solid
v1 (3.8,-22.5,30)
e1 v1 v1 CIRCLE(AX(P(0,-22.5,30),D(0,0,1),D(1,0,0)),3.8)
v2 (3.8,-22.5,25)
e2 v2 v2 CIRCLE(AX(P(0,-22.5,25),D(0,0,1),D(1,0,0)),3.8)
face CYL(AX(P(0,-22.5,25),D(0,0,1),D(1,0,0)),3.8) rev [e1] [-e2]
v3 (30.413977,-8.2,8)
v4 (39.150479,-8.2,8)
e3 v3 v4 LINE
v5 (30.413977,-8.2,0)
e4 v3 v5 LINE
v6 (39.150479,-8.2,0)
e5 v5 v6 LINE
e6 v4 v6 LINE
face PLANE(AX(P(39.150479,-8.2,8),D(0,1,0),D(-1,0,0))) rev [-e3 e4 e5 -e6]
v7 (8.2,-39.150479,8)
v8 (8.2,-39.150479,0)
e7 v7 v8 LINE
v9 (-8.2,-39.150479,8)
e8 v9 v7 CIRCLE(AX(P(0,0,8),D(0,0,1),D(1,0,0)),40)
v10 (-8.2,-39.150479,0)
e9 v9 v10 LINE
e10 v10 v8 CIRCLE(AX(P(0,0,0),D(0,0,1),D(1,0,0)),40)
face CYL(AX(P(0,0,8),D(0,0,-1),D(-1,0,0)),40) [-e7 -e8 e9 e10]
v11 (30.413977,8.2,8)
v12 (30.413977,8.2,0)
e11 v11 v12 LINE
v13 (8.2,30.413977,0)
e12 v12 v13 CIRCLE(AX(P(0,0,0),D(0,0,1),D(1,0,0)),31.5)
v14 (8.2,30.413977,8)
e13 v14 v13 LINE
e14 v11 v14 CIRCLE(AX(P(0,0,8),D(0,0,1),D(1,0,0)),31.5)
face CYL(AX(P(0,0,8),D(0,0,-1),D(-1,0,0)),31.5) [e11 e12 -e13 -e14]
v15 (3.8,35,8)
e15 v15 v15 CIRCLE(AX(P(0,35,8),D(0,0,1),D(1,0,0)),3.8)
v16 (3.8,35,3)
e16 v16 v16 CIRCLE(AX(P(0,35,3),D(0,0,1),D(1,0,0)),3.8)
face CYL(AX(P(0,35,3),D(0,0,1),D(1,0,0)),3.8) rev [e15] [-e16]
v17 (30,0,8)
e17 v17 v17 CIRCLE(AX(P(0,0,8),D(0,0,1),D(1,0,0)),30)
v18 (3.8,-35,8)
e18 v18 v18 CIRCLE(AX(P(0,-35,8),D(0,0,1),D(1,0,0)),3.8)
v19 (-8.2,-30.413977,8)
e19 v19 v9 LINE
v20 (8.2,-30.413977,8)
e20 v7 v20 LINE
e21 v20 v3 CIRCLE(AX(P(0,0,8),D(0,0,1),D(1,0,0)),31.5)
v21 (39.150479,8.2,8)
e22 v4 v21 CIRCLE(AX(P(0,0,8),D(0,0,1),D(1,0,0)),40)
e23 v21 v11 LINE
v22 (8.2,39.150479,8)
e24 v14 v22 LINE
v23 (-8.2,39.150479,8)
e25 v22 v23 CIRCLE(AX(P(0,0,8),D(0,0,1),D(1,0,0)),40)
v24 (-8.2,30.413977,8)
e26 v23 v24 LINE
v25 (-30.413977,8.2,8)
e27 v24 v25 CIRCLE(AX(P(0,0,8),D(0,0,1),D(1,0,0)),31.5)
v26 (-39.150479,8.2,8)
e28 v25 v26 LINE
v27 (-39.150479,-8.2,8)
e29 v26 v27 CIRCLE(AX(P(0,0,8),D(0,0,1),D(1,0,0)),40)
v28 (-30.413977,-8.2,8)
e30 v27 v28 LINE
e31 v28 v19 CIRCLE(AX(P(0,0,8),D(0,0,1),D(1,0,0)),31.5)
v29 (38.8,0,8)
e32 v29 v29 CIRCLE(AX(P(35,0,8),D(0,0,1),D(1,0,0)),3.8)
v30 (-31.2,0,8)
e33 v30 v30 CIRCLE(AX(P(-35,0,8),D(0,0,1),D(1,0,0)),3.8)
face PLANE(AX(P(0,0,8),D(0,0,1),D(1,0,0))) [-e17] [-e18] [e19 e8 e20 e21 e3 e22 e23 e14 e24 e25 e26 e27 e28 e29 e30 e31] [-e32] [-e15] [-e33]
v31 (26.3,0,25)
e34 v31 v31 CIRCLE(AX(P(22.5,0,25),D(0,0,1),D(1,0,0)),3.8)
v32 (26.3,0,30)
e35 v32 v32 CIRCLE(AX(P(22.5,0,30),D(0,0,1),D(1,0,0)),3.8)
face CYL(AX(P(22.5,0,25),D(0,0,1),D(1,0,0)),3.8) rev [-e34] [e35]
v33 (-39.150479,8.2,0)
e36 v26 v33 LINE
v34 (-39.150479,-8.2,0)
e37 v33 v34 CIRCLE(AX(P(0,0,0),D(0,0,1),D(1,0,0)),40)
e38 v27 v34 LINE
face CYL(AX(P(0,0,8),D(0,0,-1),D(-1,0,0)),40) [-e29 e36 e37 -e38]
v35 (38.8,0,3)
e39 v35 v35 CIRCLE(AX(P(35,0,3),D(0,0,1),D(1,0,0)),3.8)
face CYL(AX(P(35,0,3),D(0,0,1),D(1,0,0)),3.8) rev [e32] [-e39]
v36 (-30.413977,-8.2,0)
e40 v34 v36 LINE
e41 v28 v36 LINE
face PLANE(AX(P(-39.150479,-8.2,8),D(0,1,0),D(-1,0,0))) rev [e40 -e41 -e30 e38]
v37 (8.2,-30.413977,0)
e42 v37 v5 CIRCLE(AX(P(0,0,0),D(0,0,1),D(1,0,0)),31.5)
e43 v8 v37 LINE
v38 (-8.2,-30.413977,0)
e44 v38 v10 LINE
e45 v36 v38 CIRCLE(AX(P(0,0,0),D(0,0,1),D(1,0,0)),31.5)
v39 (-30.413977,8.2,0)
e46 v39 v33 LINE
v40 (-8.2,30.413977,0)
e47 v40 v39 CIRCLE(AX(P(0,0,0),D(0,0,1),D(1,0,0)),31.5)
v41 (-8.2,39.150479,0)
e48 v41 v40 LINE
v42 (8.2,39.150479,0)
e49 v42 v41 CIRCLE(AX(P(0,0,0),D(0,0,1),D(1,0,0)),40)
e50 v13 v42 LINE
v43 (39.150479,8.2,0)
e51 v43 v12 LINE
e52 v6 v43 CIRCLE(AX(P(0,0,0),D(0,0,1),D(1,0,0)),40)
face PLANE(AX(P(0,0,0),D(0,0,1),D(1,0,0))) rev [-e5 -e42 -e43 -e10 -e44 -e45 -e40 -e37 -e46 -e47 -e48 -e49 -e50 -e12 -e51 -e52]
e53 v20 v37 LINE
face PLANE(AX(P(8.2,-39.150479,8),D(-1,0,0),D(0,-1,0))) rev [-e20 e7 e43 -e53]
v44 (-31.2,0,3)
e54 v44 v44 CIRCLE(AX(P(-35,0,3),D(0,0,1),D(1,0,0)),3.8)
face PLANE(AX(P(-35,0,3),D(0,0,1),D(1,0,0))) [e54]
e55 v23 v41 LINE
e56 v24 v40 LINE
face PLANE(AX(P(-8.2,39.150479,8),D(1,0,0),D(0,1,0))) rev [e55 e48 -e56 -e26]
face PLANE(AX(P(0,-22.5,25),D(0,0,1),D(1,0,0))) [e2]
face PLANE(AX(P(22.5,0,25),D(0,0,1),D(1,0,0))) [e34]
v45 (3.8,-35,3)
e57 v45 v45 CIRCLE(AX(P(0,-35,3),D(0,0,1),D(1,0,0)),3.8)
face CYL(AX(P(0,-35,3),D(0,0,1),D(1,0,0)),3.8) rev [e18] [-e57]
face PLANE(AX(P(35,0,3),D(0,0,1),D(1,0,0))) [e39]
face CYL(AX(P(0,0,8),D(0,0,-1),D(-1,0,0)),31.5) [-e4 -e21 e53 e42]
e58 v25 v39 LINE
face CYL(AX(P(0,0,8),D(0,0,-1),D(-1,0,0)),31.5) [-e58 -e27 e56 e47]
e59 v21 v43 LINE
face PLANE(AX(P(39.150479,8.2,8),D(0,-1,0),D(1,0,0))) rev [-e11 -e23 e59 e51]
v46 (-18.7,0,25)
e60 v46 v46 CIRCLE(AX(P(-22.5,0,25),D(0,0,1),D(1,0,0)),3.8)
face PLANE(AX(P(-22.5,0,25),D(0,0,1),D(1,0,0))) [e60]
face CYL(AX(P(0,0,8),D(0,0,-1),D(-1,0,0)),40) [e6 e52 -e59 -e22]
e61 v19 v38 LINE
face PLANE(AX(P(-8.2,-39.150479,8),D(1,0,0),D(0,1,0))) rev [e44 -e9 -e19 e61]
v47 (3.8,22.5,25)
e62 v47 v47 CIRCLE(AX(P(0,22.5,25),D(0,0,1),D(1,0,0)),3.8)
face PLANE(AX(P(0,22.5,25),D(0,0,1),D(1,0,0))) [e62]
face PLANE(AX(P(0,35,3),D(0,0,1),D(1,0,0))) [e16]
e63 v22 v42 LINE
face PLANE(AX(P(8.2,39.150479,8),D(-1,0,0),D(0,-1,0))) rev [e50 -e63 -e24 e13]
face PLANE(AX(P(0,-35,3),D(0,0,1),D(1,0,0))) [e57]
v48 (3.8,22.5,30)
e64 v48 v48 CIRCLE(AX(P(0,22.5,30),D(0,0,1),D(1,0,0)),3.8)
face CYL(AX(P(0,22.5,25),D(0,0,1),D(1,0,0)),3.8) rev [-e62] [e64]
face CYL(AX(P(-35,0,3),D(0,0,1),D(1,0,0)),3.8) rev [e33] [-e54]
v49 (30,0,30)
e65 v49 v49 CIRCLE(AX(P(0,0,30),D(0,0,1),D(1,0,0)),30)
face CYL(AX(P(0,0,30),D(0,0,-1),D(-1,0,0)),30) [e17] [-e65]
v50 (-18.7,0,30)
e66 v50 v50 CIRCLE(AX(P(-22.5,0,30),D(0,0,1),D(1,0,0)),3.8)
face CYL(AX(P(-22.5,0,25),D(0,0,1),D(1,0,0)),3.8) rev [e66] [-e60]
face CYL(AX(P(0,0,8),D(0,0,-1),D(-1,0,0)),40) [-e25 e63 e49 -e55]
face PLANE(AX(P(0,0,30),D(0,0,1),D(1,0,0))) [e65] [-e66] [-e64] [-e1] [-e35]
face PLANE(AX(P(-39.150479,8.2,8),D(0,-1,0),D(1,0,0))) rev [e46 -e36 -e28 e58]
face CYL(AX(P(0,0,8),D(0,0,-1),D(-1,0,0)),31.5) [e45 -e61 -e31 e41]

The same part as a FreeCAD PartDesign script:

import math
import FreeCAD as App
import Part
import Sketcher

doc = App.newDocument("Part")
body = doc.addObject("PartDesign::Body", "Body")

# Sketch on XY plane
sketch1 = doc.addObject("Sketcher::SketchObject", "Sketch")
body.addObject(sketch1)
sketch1.AttachmentSupport = (doc.XY_Plane, [""])
sketch1.MapMode = "FlatFace"
sketch1.addGeometry(Part.LineSegment(App.Vector(-8, 39, 0), App.Vector(-8, 30, 0)), False)
sketch1.addGeometry(Part.ArcOfCircle(Part.Circle(App.Vector(0, 0, 0), App.Vector(0, 0, 1), 32), math.radians(105), math.radians(165)), False)
sketch1.addGeometry(Part.LineSegment(App.Vector(-30, 8, 0), App.Vector(-39, 8, 0)), False)
sketch1.addGeometry(Part.ArcOfCircle(Part.Circle(App.Vector(0, 0, 0), App.Vector(0, 0, 1), 40), math.radians(168), math.radians(192)), False)
sketch1.addGeometry(Part.LineSegment(App.Vector(-39, -8, 0), App.Vector(-30, -8, 0)), False)
sketch1.addGeometry(Part.ArcOfCircle(Part.Circle(App.Vector(0, 0, 0), App.Vector(0, 0, 1), 32), math.radians(-165), math.radians(-105)), False)
sketch1.addGeometry(Part.LineSegment(App.Vector(-8, -30, 0), App.Vector(-8, -39, 0)), False)
sketch1.addGeometry(Part.ArcOfCircle(Part.Circle(App.Vector(0, 0, 0), App.Vector(0, 0, 1), 40), math.radians(-102), math.radians(-78)), False)
sketch1.addGeometry(Part.LineSegment(App.Vector(8, -39, 0), App.Vector(8, -30, 0)), False)
sketch1.addGeometry(Part.ArcOfCircle(Part.Circle(App.Vector(0, 0, 0), App.Vector(0, 0, 1), 32), math.radians(-75), math.radians(-15)), False)
sketch1.addGeometry(Part.LineSegment(App.Vector(30, -8, 0), App.Vector(39, -8, 0)), False)
sketch1.addGeometry(Part.ArcOfCircle(Part.Circle(App.Vector(0, 0, 0), App.Vector(0, 0, 1), 40), math.radians(-12), math.radians(12)), False)
sketch1.addGeometry(Part.LineSegment(App.Vector(39, 8, 0), App.Vector(30, 8, 0)), False)
sketch1.addGeometry(Part.ArcOfCircle(Part.Circle(App.Vector(0, 0, 0), App.Vector(0, 0, 1), 32), math.radians(15), math.radians(75)), False)
sketch1.addGeometry(Part.LineSegment(App.Vector(8, 30, 0), App.Vector(8, 39, 0)), False)
sketch1.addGeometry(Part.ArcOfCircle(Part.Circle(App.Vector(0, 0, 0), App.Vector(0, 0, 1), 40), math.radians(78), math.radians(102)), False)
sketch1.addConstraint(Sketcher.Constraint("Coincident", 0, 2, 1, 1))
sketch1.addConstraint(Sketcher.Constraint("Coincident", 1, 2, 2, 1))
sketch1.addConstraint(Sketcher.Constraint("Coincident", 2, 2, 3, 1))
sketch1.addConstraint(Sketcher.Constraint("Coincident", 3, 2, 4, 1))
sketch1.addConstraint(Sketcher.Constraint("Coincident", 4, 2, 5, 1))
sketch1.addConstraint(Sketcher.Constraint("Coincident", 5, 2, 6, 1))
sketch1.addConstraint(Sketcher.Constraint("Coincident", 6, 2, 7, 1))
sketch1.addConstraint(Sketcher.Constraint("Coincident", 7, 2, 8, 1))
sketch1.addConstraint(Sketcher.Constraint("Coincident", 8, 2, 9, 1))
sketch1.addConstraint(Sketcher.Constraint("Coincident", 9, 2, 10, 1))
sketch1.addConstraint(Sketcher.Constraint("Coincident", 10, 2, 11, 1))
sketch1.addConstraint(Sketcher.Constraint("Coincident", 11, 2, 12, 1))
sketch1.addConstraint(Sketcher.Constraint("Coincident", 12, 2, 13, 1))
sketch1.addConstraint(Sketcher.Constraint("Coincident", 13, 2, 14, 1))
sketch1.addConstraint(Sketcher.Constraint("Coincident", 14, 2, 15, 1))
sketch1.addConstraint(Sketcher.Constraint("Coincident", 15, 2, 0, 1))
sketch1.addConstraint(Sketcher.Constraint("Vertical", 0))
sketch1.addConstraint(Sketcher.Constraint("Horizontal", 2))
sketch1.addConstraint(Sketcher.Constraint("Horizontal", 4))
sketch1.addConstraint(Sketcher.Constraint("Vertical", 6))
sketch1.addConstraint(Sketcher.Constraint("Vertical", 8))
sketch1.addConstraint(Sketcher.Constraint("Horizontal", 10))
sketch1.addConstraint(Sketcher.Constraint("Horizontal", 12))
sketch1.addConstraint(Sketcher.Constraint("Vertical", 14))
sketch1.addConstraint(Sketcher.Constraint("Coincident", 1, 3, -1, 1))
sketch1.addConstraint(Sketcher.Constraint("Coincident", 3, 3, -1, 1))
sketch1.addConstraint(Sketcher.Constraint("Coincident", 5, 3, -1, 1))
sketch1.addConstraint(Sketcher.Constraint("Coincident", 7, 3, -1, 1))
sketch1.addConstraint(Sketcher.Constraint("Coincident", 9, 3, -1, 1))
sketch1.addConstraint(Sketcher.Constraint("Coincident", 11, 3, -1, 1))
sketch1.addConstraint(Sketcher.Constraint("Coincident", 13, 3, -1, 1))
sketch1.addConstraint(Sketcher.Constraint("Coincident", 15, 3, -1, 1))
sketch1.addConstraint(Sketcher.Constraint("Equal", 1, 5))
sketch1.addConstraint(Sketcher.Constraint("Equal", 3, 7))
sketch1.addConstraint(Sketcher.Constraint("Equal", 5, 9))
sketch1.addConstraint(Sketcher.Constraint("Equal", 7, 11))
sketch1.addConstraint(Sketcher.Constraint("Equal", 9, 13))
sketch1.addConstraint(Sketcher.Constraint("Equal", 11, 15))
sketch1.addConstraint(Sketcher.Constraint("Horizontal", 6, 2, 7, 2))
sketch1.addConstraint(Sketcher.Constraint("Horizontal", 4, 2, 9, 2))
sketch1.addConstraint(Sketcher.Constraint("Horizontal", 2, 2, 11, 2))
sketch1.addConstraint(Sketcher.Constraint("Horizontal", 0, 2, 13, 2))
sketch1.addConstraint(Sketcher.Constraint("Vertical", 2, 2, 3, 2))
sketch1.addConstraint(Sketcher.Constraint("Vertical", 0, 2, 5, 2))
sketch1.addConstraint(Sketcher.Constraint("Equal", 12, 0))
sketch1.addConstraint(Sketcher.Constraint("Radius", 3, 40.0))
sketch1.addConstraint(Sketcher.Constraint("Radius", 1, 31.5))
sketch1.addConstraint(Sketcher.Constraint("DistanceX", 0, 2, -1, 1, 8.2))
pad1 = doc.addObject("PartDesign::Pad", "Pad")
body.addObject(pad1)
pad1.Profile = sketch1
pad1.Length = 8

# Sketch on XY plane
sketch2 = doc.addObject("Sketcher::SketchObject", "Sketch001")
body.addObject(sketch2)
sketch2.AttachmentSupport = (doc.XY_Plane, [""])
sketch2.MapMode = "FlatFace"
sketch2.AttachmentOffset = App.Placement(App.Vector(0, 0, 8), App.Rotation())
sketch2.addGeometry(Part.Circle(App.Vector(0, 0, 0), App.Vector(0, 0, 1), 30), False)
sketch2.addConstraint(Sketcher.Constraint("Coincident", 0, 3, -1, 1))
sketch2.addConstraint(Sketcher.Constraint("Diameter", 0, 60.0))
pad2 = doc.addObject("PartDesign::Pad", "Pad001")
body.addObject(pad2)
pad2.Profile = sketch2
pad2.Length = 22

# Sketch on XY plane
sketch3 = doc.addObject("Sketcher::SketchObject", "Sketch002")
body.addObject(sketch3)
sketch3.AttachmentSupport = (doc.XY_Plane, [""])
sketch3.MapMode = "FlatFace"
sketch3.AttachmentOffset = App.Placement(App.Vector(0, 0, 8), App.Rotation())
sketch3.addGeometry(Part.Circle(App.Vector(0, 35, 0), App.Vector(0, 0, 1), 3.8), False)
sketch3.addGeometry(Part.Circle(App.Vector(35, 0, 0), App.Vector(0, 0, 1), 3.8), False)
sketch3.addGeometry(Part.Circle(App.Vector(0, -35, 0), App.Vector(0, 0, 1), 3.8), False)
sketch3.addGeometry(Part.Circle(App.Vector(-35, 0, 0), App.Vector(0, 0, 1), 3.8), False)
sketch3.addConstraint(Sketcher.Constraint("Equal", 0, 1))
sketch3.addConstraint(Sketcher.Constraint("Equal", 1, 2))
sketch3.addConstraint(Sketcher.Constraint("Equal", 2, 3))
sketch3.addConstraint(Sketcher.Constraint("Symmetric", 0, 3, 2, 3, -1, 1))
sketch3.addConstraint(Sketcher.Constraint("Symmetric", 1, 3, 3, 3, -1, 1))
sketch3.addConstraint(Sketcher.Constraint("PointOnObject", 0, 3, -2))
sketch3.addConstraint(Sketcher.Constraint("PointOnObject", 1, 3, -1))
sketch3.addConstraint(Sketcher.Constraint("Diameter", 0, 7.6))
sketch3.addConstraint(Sketcher.Constraint("DistanceY", -1, 1, 0, 3, 35.0))
sketch3.addConstraint(Sketcher.Constraint("DistanceX", -1, 1, 1, 3, 35.0))
pocket1 = doc.addObject("PartDesign::Pocket", "Pocket")
body.addObject(pocket1)
pocket1.Profile = sketch3
pocket1.Length = 5

# Sketch on XY plane
sketch4 = doc.addObject("Sketcher::SketchObject", "Sketch003")
body.addObject(sketch4)
sketch4.AttachmentSupport = (doc.XY_Plane, [""])
sketch4.MapMode = "FlatFace"
sketch4.AttachmentOffset = App.Placement(App.Vector(0, 0, 30), App.Rotation())
sketch4.addGeometry(Part.Circle(App.Vector(0, 22.5, 0), App.Vector(0, 0, 1), 3.8), False)
sketch4.addGeometry(Part.Circle(App.Vector(22.5, 0, 0), App.Vector(0, 0, 1), 3.8), False)
sketch4.addGeometry(Part.Circle(App.Vector(0, -22.5, 0), App.Vector(0, 0, 1), 3.8), False)
sketch4.addGeometry(Part.Circle(App.Vector(-22.5, 0, 0), App.Vector(0, 0, 1), 3.8), False)
sketch4.addConstraint(Sketcher.Constraint("Equal", 0, 1))
sketch4.addConstraint(Sketcher.Constraint("Equal", 1, 2))
sketch4.addConstraint(Sketcher.Constraint("Equal", 2, 3))
sketch4.addConstraint(Sketcher.Constraint("Symmetric", 0, 3, 2, 3, -1, 1))
sketch4.addConstraint(Sketcher.Constraint("Symmetric", 1, 3, 3, 3, -1, 1))
sketch4.addConstraint(Sketcher.Constraint("PointOnObject", 0, 3, -2))
sketch4.addConstraint(Sketcher.Constraint("PointOnObject", 1, 3, -1))
sketch4.addConstraint(Sketcher.Constraint("Diameter", 0, 7.6))
sketch4.addConstraint(Sketcher.Constraint("DistanceY", 2, 3, 0, 3, 45.0))
sketch4.addConstraint(Sketcher.Constraint("DistanceX", 3, 3, 1, 3, 45.0))
pocket2 = doc.addObject("PartDesign::Pocket", "Pocket001")
body.addObject(pocket2)
pocket2.Profile = sketch4
pocket2.Length = 5

doc.recompute()
